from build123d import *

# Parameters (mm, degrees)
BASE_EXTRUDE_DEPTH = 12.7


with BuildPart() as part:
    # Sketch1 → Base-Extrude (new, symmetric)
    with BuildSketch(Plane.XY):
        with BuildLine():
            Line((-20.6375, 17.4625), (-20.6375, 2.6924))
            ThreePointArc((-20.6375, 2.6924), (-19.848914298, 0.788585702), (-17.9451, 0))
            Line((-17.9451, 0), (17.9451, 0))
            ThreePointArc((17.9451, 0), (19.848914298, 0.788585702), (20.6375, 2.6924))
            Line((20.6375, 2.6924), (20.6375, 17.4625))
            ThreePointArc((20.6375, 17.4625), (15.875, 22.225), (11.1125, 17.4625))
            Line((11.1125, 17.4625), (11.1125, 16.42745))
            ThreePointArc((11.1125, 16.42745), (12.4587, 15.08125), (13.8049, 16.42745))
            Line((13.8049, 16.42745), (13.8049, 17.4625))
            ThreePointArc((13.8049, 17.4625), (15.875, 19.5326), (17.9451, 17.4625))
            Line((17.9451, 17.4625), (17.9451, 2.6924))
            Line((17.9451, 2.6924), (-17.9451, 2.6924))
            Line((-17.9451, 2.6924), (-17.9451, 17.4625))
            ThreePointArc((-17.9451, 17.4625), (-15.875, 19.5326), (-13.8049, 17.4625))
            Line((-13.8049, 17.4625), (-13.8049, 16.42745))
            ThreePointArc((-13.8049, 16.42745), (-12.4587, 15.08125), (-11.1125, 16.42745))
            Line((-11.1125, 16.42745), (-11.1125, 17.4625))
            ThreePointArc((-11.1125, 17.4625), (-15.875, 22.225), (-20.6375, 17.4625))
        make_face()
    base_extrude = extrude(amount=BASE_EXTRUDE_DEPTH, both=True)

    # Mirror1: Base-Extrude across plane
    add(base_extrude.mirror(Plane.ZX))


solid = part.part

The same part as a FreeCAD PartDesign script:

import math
import FreeCAD as App
import Part
import Sketcher
Q = App.Units.Quantity

doc = App.newDocument("Part")
body = doc.addObject("PartDesign::Body", "Body")

sketch1 = body.newObject("Sketcher::SketchObject", "Sketch")
sketch1.AttachmentSupport = (doc.getObject("XY_Plane"), [""])
sketch1.MapMode = "FlatFace"
sketch1.addGeometry(Part.LineSegment(App.Vector(-20.6, 17.5, 0), App.Vector(-20.6, 2.7, 0)), False)
sketch1.addGeometry(Part.ArcOfCircle(Part.Circle(App.Vector(-17.9, 2.7, 0), App.Vector(0, 0, 1), 2.7), math.radians(180), math.radians(270)), False)
sketch1.addGeometry(Part.LineSegment(App.Vector(-17.9, 0, 0), App.Vector(17.9, 0, 0)), False)
sketch1.addGeometry(Part.ArcOfCircle(Part.Circle(App.Vector(17.9, 2.7, 0), App.Vector(0, 0, 1), 2.7), math.radians(-90), math.radians(0)), False)
sketch1.addGeometry(Part.LineSegment(App.Vector(20.6, 2.7, 0), App.Vector(20.6, 17.5, 0)), False)
sketch1.addGeometry(Part.ArcOfCircle(Part.Circle(App.Vector(15.9, 17.5, 0), App.Vector(0, 0, 1), 4.8), math.radians(0), math.radians(180)), False)
sketch1.addGeometry(Part.LineSegment(App.Vector(11.1, 17.5, 0), App.Vector(11.1, 16.4, 0)), False)
sketch1.addGeometry(Part.ArcOfCircle(Part.Circle(App.Vector(12.5, 16.4, 0), App.Vector(0, 0, 1), 1.3), math.radians(180), math.radians(360)), False)
sketch1.addGeometry(Part.LineSegment(App.Vector(13.8, 16.4, 0), App.Vector(13.8, 17.5, 0)), False)
sketch1.addGeometry(Part.ArcOfCircle(Part.Circle(App.Vector(15.9, 17.5, 0), App.Vector(0, 0, 1), 2.1), math.radians(0), math.radians(180)), False)
sketch1.addGeometry(Part.LineSegment(App.Vector(17.9, 17.5, 0), App.Vector(17.9, 2.7, 0)), False)
sketch1.addGeometry(Part.LineSegment(App.Vector(17.9, 2.7, 0), App.Vector(-17.9, 2.7, 0)), False)
sketch1.addGeometry(Part.LineSegment(App.Vector(-17.9, 2.7, 0), App.Vector(-17.9, 17.5, 0)), False)
sketch1.addGeometry(Part.ArcOfCircle(Part.Circle(App.Vector(-15.9, 17.5, 0), App.Vector(0, 0, 1), 2.1), math.radians(0), math.radians(180)), False)
sketch1.addGeometry(Part.LineSegment(App.Vector(-13.8, 17.5, 0), App.Vector(-13.8, 16.4, 0)), False)
sketch1.addGeometry(Part.ArcOfCircle(Part.Circle(App.Vector(-12.5, 16.4, 0), App.Vector(0, 0, 1), 1.3), math.radians(180), math.radians(360)), False)
sketch1.addGeometry(Part.LineSegment(App.Vector(-11.1, 16.4, 0), App.Vector(-11.1, 17.5, 0)), False)
sketch1.addGeometry(Part.ArcOfCircle(Part.Circle(App.Vector(-15.9, 17.5, 0), App.Vector(0, 0, 1), 4.8), math.radians(0), math.radians(180)), False)
sketch1.addConstraint(Sketcher.Constraint("Tangent", 0, 2, 1, 1))
sketch1.addConstraint(Sketcher.Constraint("Tangent", 1, 2, 2, 1))
sketch1.addConstraint(Sketcher.Constraint("Tangent", 2, 2, 3, 1))
sketch1.addConstraint(Sketcher.Constraint("Tangent", 3, 2, 4, 1))
sketch1.addConstraint(Sketcher.Constraint("Tangent", 4, 2, 5, 1))
sketch1.addConstraint(Sketcher.Constraint("Tangent", 5, 2, 6, 1))
sketch1.addConstraint(Sketcher.Constraint("Tangent", 6, 2, 7, 1))
sketch1.addConstraint(Sketcher.Constraint("Tangent", 7, 2, 8, 1))
sketch1.addConstraint(Sketcher.Constraint("Tangent", 8, 2, 9, 2))
sketch1.addConstraint(Sketcher.Constraint("Tangent", 9, 1, 10, 1))
sketch1.addConstraint(Sketcher.Constraint("Coincident", 10, 2, 11, 1))
sketch1.addConstraint(Sketcher.Constraint("Coincident", 11, 2, 12, 1))
sketch1.addConstraint(Sketcher.Constraint("Tangent", 12, 2, 13, 2))
sketch1.addConstraint(Sketcher.Constraint("Tangent", 13, 1, 14, 1))
sketch1.addConstraint(Sketcher.Constraint("Tangent", 14, 2, 15, 1))
sketch1.addConstraint(Sketcher.Constraint("Tangent", 15, 2, 16, 1))
sketch1.addConstraint(Sketcher.Constraint("Tangent", 16, 2, 17, 1))
sketch1.addConstraint(Sketcher.Constraint("Tangent", 17, 2, 0, 1))
sketch1.addConstraint(Sketcher.Constraint("Vertical", 0))
sketch1.addConstraint(Sketcher.Constraint("Horizontal", 2))
sketch1.addConstraint(Sketcher.Constraint("Vertical", 4))
sketch1.addConstraint(Sketcher.Constraint("Vertical", 6))
sketch1.addConstraint(Sketcher.Constraint("Vertical", 8))
sketch1.addConstraint(Sketcher.Constraint("Vertical", 10))
sketch1.addConstraint(Sketcher.Constraint("Horizontal", 11))
sketch1.addConstraint(Sketcher.Constraint("Vertical", 12))
sketch1.addConstraint(Sketcher.Constraint("Vertical", 14))
sketch1.addConstraint(Sketcher.Constraint("Vertical", 16))
sketch1.addConstraint(Sketcher.Constraint("Coincident", 9, 3, 5, 3))
sketch1.addConstraint(Sketcher.Constraint("Coincident", 17, 3, 13, 3))
sketch1.addConstraint(Sketcher.Constraint("Coincident", 10, 2, 3, 3))
sketch1.addConstraint(Sketcher.Constraint("Coincident", 11, 2, 1, 3))
sketch1.addConstraint(Sketcher.Constraint("Equal", 9, 13))
sketch1.addConstraint(Sketcher.Constraint("Symmetric", 1, 2, 2, 2, -1, 1))
sketch1.addConstraint(Sketcher.Constraint("Horizontal", 9, 3, 13, 3))
sketch1.addConstraint(Sketcher.Constraint("Horizontal", 7, 3, 15, 3))
sketch1.addConstraint(Sketcher.Constraint("Radius", 1, Q("0.106 in")))
sketch1.addConstraint(Sketcher.Constraint("Radius", 5, Q("0.1875 in")))
sketch1.addConstraint(Sketcher.Constraint("DistanceX", 2, 1, 2, 2, Q("1.413 in")))
sketch1.addConstraint(Sketcher.Constraint("DistanceY", 0, 2, 0, 1, Q("0.5815 in")))
sketch1.addConstraint(Sketcher.Constraint("DistanceY", 6, 2, 6, 1, Q("1.03505 mm")))
pad1 = body.newObject("PartDesign::Pad", "Pad")
pad1.Profile = sketch1
pad1.Length = Q("1 in")
pad1.Midplane = True
doc.recompute()

mirrored = body.newObject("PartDesign::Mirrored", "Mirrored")
mirrored.Originals = [pad1]
mirrored.MirrorPlane = (doc.getObject("XZ_Plane"), [""])
body.Tip = mirrored

doc.recompute()
